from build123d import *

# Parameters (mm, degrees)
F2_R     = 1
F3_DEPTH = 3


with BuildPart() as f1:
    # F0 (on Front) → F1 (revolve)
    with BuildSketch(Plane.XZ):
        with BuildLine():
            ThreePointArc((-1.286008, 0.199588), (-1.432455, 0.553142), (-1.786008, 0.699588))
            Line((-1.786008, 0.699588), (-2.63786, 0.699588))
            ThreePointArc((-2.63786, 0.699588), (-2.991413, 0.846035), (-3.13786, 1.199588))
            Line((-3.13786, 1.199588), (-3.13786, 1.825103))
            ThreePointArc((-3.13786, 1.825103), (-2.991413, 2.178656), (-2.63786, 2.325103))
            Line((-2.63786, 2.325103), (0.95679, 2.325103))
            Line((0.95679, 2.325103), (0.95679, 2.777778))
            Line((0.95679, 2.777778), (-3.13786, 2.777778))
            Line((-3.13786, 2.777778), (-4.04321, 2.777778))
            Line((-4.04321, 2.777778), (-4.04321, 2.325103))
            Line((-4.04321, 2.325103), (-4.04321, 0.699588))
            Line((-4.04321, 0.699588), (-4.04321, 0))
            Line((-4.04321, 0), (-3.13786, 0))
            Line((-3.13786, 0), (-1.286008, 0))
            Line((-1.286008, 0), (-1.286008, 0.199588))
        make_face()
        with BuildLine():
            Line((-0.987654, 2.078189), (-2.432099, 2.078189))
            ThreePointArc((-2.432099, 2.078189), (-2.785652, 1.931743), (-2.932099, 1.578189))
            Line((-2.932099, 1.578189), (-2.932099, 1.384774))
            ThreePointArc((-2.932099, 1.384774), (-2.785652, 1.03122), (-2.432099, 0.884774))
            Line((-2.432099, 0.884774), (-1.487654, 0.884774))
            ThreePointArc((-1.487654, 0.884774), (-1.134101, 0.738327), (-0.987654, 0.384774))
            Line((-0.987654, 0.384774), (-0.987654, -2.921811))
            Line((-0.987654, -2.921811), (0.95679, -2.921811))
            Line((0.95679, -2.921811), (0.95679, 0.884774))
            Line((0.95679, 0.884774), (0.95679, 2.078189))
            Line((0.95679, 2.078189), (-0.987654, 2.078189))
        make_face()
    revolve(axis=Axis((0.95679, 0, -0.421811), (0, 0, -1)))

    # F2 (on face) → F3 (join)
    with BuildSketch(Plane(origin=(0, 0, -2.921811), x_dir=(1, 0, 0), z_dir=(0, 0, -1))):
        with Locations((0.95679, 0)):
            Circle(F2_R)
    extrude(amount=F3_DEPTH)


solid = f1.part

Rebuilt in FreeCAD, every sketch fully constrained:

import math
import FreeCAD as App
import Part
import Sketcher
from FreeCAD import Vector

doc = App.newDocument("Part")
body = doc.addObject("PartDesign::Body", "Body")
body.AllowCompound = True

# Sketch on XZ plane
sketch1 = body.newObject("Sketcher::SketchObject", "Sketch")
sketch1.AttachmentSupport = (doc.getObject("XZ_Plane"), [""])
sketch1.MapMode = "FlatFace"
sketch1.addGeometry([
    Part.ArcOfCircle(Part.Circle(Vector(-1.786008, 0.199588, 0), Vector(0, 0, 1), 0.5), math.radians(-0.000043), math.radians(90.000043)),  # 0
    Part.LineSegment(Vector(-1.786008, 0.699588, 0), Vector(-2.63786, 0.699588, 0)),  # 1
    Part.ArcOfCircle(Part.Circle(Vector(-2.637859, 1.199589, 0), Vector(0, 0, 1), 0.500001), math.radians(-179.999847), math.radians(-90.000153)),  # 2
    Part.LineSegment(Vector(-3.13786, 1.199588, 0), Vector(-3.13786, 1.825103, 0)),  # 3
    Part.ArcOfCircle(Part.Circle(Vector(-2.637859, 1.825102, 0), Vector(0, 0, 1), 0.500001), math.radians(90.000153), math.radians(179.999847)),  # 4
    Part.LineSegment(Vector(-2.63786, 2.325103, 0), Vector(0.95679, 2.325103, 0)),  # 5
    Part.LineSegment(Vector(0.95679, 2.325103, 0), Vector(0.95679, 2.777778, 0)),  # 6
    Part.LineSegment(Vector(0.95679, 2.777778, 0), Vector(-4.04321, 2.777778, 0)),  # 7
    Part.LineSegment(Vector(-4.04321, 2.777778, 0), Vector(-4.04321, 0, 0)),  # 8
    Part.LineSegment(Vector(-4.04321, 0, 0), Vector(-1.286008, 0, 0)),  # 9
    Part.LineSegment(Vector(-1.286008, 0, 0), Vector(-1.286008, 0.199588, 0)),  # 10
    Part.ArcOfCircle(Part.Circle(Vector(-2.432099, 1.578189, 0), Vector(0, 0, 1), 0.5), math.radians(89.999957), math.radians(180.000043)),  # 11
    Part.LineSegment(Vector(-2.932099, 1.578189, 0), Vector(-2.932099, 1.384774, 0)),  # 12
    Part.ArcOfCircle(Part.Circle(Vector(-2.432099, 1.384774, 0), Vector(0, 0, 1), 0.5), math.radians(179.999957), math.radians(270.000043)),  # 13
    Part.LineSegment(Vector(-2.432099, 0.884774, 0), Vector(-1.487654, 0.884774, 0)),  # 14
    Part.ArcOfCircle(Part.Circle(Vector(-1.487655, 0.384773, 0), Vector(0, 0, 1), 0.500001), math.radians(0.000153), math.radians(89.999847)),  # 15
    Part.LineSegment(Vector(-0.987654, 0.384774, 0), Vector(-0.987654, -2.921811, 0)),  # 16
    Part.LineSegment(Vector(-0.987654, -2.921811, 0), Vector(0.95679, -2.921811, 0)),  # 17
    Part.LineSegment(Vector(0.95679, -2.921811, 0), Vector(0.95679, 2.078189, 0)),  # 18
    Part.LineSegment(Vector(0.95679, 2.078189, 0), Vector(-2.432099, 2.078189, 0)),  # 19
], False)
sketch1.addGeometry(Part.LineSegment(Vector(0.95679, 2.777778, 0), Vector(0.95679, -2.921811, 0)), True)  # axis
sketch1.addConstraint([
    Sketcher.Constraint("Tangent", 0, 2, 1, 1),
    Sketcher.Constraint("Coincident", 1, 2, 2, 2),
    Sketcher.Constraint("Coincident", 2, 1, 3, 1),
    Sketcher.Constraint("Coincident", 3, 2, 4, 2),
    Sketcher.Constraint("Coincident", 4, 1, 5, 1),
    Sketcher.Constraint("Coincident", 5, 2, 6, 1),
    Sketcher.Constraint("Coincident", 6, 2, 7, 1),
    Sketcher.Constraint("Coincident", 7, 2, 8, 1),
    Sketcher.Constraint("Coincident", 8, 2, 9, 1),
    Sketcher.Constraint("Coincident", 9, 2, 10, 1),
    Sketcher.Constraint("Tangent", 10, 2, 0, 1),
    Sketcher.Constraint("Tangent", 11, 2, 12, 1),
    Sketcher.Constraint("Tangent", 12, 2, 13, 1),
    Sketcher.Constraint("Tangent", 13, 2, 14, 1),
    Sketcher.Constraint("Coincident", 14, 2, 15, 2),
    Sketcher.Constraint("Coincident", 15, 1, 16, 1),
    Sketcher.Constraint("Coincident", 16, 2, 17, 1),
    Sketcher.Constraint("Coincident", 17, 2, 18, 1),
    Sketcher.Constraint("Coincident", 18, 2, 19, 1),
    Sketcher.Constraint("Tangent", 19, 2, 11, 1),
    Sketcher.Constraint("Horizontal", 1),
    Sketcher.Constraint("Vertical", 3),
    Sketcher.Constraint("Horizontal", 5),
    Sketcher.Constraint("Vertical", 6),
    Sketcher.Constraint("Horizontal", 7),
    Sketcher.Constraint("Vertical", 8),
    Sketcher.Constraint("Horizontal", 9),
    Sketcher.Constraint("Vertical", 10),
    Sketcher.Constraint("Vertical", 12),
    Sketcher.Constraint("Horizontal", 14),
    Sketcher.Constraint("Vertical", 16),
    Sketcher.Constraint("Horizontal", 17),
    Sketcher.Constraint("Vertical", 18),
    Sketcher.Constraint("Horizontal", 19),
    Sketcher.Constraint("Vertical", 20),
    Sketcher.Constraint("Coincident", 20, 1, 6, 2),
    Sketcher.Constraint("Coincident", 20, 2, 17, 2),
    Sketcher.Constraint("Equal", 0, 2),
    Sketcher.Constraint("Equal", 2, 4),
    Sketcher.Constraint("Equal", 4, 11),
    Sketcher.Constraint("Equal", 11, 13),
    Sketcher.Constraint("Equal", 13, 15),
    Sketcher.Constraint("PointOnObject", 8, 2, -1),
    Sketcher.Constraint("Horizontal", 4, 3, 3, 2),
    Sketcher.Constraint("Vertical", 4, 3, 1, 2),
    Sketcher.Constraint("Vertical", 1, 2, 4, 1),
    Sketcher.Constraint("Vertical", 15, 3, 14, 2),
    Sketcher.Constraint("Equal", 7, 18),
    Sketcher.Constraint("Radius", 0, 0.5),
    Sketcher.Constraint("DistanceX", 7, 2, 7, 1, 5.0),
    Sketcher.Constraint("DistanceY", 1, 2, 2, 1, 0.5),
    Sketcher.Constraint("DistanceY", 15, 1, 14, 2, 0.5),
    Sketcher.Constraint("DistanceX", 1, 2, 1, 1, 0.851852),
    Sketcher.Constraint("DistanceX", 5, 1, 5, 2, 3.59465),
    Sketcher.Constraint("DistanceX", 19, 2, 19, 1, 3.388889),
    Sketcher.Constraint("DistanceY", 8, 2, 8, 1, 2.777778),
    Sketcher.Constraint("DistanceY", 20, 2, 20, 1, 5.699589),
    Sketcher.Constraint("DistanceY", -1, 1, 4, 3, 1.825102),
    Sketcher.Constraint("DistanceX", 11, 3, -1, 1, 2.432099),
    Sketcher.Constraint("DistanceY", 2, 3, 11, 3, 0.3786),
    Sketcher.Constraint("DistanceX", 14, 1, 14, 2, 0.944445),
    Sketcher.Constraint("DistanceY", 12, 2, 12, 1, 0.193415),
])
revolution = body.newObject("PartDesign::Revolution", "Revolution")
revolution.Profile = sketch1
revolution.ReferenceAxis = (sketch1, ["Axis0"])
revolution.Angle = 360

# Sketch on XY plane
sketch2 = body.newObject("Sketcher::SketchObject", "Sketch001")
sketch2.AttachmentSupport = (doc.getObject("XY_Plane"), [""])
sketch2.MapMode = "FlatFace"
sketch2.AttachmentOffset = App.Placement(Vector(0, 0, -2.921811), App.Rotation())
sketch2.addGeometry(Part.Circle(Vector(0.95679, 0, 0), Vector(0, 0, 1), 1), False)
sketch2.addConstraint([
    Sketcher.Constraint("PointOnObject", 0, 3, -1),
    Sketcher.Constraint("Diameter", 0, 2.0),
    Sketcher.Constraint("DistanceX", -1, 1, 0, 3, 0.95679),
])
pad1 = body.newObject("PartDesign::Pad", "Pad")
pad1.Profile = sketch2
pad1.Length = 3
pad1.Reversed = True

doc.recompute()
